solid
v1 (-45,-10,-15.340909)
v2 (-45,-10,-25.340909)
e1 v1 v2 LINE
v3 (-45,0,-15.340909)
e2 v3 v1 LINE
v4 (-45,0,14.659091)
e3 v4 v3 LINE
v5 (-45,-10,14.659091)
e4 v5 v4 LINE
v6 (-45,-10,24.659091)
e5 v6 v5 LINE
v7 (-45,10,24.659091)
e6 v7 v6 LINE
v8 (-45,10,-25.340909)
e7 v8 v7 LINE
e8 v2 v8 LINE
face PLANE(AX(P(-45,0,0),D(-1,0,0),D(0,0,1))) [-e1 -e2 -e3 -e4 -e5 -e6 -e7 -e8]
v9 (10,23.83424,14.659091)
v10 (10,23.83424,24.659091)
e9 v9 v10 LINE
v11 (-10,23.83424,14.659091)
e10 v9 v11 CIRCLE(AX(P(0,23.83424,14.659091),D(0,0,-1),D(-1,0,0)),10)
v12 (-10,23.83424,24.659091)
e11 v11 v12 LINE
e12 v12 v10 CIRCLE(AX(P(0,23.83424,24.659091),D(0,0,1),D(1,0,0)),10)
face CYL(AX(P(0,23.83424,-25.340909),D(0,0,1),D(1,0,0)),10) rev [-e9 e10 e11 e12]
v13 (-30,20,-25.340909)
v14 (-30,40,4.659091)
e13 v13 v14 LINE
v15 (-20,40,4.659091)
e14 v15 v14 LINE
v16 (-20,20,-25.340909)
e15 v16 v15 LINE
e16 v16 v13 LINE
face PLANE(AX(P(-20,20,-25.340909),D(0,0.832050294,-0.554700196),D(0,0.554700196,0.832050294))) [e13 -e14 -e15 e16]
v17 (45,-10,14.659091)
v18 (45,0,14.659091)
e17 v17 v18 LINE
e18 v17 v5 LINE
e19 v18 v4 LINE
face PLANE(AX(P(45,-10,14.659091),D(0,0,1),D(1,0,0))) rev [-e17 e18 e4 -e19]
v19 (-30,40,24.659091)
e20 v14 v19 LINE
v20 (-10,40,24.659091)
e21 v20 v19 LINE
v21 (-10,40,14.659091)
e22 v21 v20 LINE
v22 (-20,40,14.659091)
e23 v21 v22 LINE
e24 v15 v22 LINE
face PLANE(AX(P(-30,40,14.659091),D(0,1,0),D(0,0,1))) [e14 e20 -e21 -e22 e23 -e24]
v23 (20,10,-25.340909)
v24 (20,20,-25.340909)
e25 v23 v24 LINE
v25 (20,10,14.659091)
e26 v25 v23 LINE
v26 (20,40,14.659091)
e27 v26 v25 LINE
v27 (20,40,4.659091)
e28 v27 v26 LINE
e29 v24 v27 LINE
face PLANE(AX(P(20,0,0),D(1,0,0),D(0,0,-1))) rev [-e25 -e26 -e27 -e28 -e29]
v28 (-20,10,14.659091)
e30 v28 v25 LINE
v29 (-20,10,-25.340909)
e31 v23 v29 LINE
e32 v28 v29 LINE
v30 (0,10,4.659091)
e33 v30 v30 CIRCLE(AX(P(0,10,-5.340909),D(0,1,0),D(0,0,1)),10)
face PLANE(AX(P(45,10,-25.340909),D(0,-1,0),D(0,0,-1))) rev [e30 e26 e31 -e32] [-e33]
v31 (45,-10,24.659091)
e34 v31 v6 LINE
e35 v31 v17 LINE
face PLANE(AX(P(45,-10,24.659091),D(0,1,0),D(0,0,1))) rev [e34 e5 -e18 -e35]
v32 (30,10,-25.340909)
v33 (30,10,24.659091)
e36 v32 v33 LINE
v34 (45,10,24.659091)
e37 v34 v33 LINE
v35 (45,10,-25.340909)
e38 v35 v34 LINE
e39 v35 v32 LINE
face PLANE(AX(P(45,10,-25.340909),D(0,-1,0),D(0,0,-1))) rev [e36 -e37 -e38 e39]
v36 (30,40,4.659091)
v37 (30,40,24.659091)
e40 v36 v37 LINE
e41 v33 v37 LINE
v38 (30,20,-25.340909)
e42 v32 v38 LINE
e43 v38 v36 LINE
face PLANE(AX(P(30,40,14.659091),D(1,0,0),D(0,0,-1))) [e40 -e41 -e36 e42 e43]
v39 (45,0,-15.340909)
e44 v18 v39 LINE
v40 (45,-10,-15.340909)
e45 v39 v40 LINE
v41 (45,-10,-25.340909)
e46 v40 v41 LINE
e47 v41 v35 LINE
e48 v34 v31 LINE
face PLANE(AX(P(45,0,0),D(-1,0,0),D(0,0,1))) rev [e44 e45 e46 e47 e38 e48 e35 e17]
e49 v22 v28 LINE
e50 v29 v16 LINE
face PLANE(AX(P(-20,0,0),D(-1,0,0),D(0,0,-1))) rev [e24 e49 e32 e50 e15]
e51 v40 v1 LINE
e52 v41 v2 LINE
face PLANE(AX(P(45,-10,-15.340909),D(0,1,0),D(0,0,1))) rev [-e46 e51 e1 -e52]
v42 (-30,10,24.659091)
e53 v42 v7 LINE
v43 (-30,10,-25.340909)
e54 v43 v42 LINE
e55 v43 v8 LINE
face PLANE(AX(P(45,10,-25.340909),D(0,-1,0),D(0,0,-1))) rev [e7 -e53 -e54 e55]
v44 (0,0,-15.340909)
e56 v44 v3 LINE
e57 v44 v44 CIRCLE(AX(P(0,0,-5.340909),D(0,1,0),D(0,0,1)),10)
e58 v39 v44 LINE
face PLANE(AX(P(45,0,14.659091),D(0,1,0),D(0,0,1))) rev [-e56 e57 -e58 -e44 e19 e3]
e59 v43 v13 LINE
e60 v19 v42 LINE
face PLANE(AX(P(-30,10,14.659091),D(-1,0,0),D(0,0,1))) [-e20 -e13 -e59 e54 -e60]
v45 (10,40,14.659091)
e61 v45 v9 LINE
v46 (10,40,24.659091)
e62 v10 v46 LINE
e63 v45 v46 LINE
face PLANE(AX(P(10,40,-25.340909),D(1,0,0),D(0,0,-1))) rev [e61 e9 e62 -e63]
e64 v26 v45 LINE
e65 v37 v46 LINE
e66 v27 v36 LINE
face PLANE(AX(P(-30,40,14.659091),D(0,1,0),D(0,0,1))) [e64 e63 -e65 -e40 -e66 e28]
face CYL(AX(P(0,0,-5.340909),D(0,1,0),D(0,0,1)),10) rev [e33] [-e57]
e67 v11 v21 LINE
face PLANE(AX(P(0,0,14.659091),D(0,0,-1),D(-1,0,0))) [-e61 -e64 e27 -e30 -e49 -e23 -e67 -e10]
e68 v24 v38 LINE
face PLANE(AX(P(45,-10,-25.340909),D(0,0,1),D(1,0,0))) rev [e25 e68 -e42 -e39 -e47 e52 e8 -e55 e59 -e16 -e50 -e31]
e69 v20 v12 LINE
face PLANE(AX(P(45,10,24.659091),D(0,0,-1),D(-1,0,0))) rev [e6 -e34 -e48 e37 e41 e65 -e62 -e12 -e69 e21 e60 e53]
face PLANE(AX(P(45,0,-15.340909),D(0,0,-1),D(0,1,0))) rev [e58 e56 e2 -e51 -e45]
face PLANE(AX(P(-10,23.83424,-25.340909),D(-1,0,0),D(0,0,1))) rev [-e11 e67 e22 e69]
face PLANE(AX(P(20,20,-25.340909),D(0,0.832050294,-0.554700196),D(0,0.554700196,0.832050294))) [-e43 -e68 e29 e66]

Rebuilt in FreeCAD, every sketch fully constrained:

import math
import FreeCAD as App
import Part
import Sketcher

V = App.Vector
Q = App.Units.Quantity


def add_polygon(sketch, points):
    """Adds a closed chain of lines whose ends are joined by coincident constraints."""
    first, n = sketch.GeometryCount, len(points)
    for a, b in zip(points, points[1:] + points[:1]):
        sketch.addGeometry(Part.LineSegment(App.Vector(*a, 0), App.Vector(*b, 0)), False)
    for i in range(n):
        sketch.addConstraint(Sketcher.Constraint("Coincident", first + i, 2, first + (i + 1) % n, 1))

doc = App.newDocument("Part")
body = doc.addObject("PartDesign::Body", "Body")

# Sketch on YZ plane
sketch1 = doc.addObject("Sketcher::SketchObject", "Sketch")
body.addObject(sketch1)
sketch1.AttachmentSupport = (doc.YZ_Plane, [""])
sketch1.MapMode = "FlatFace"
add_polygon(sketch1, [(0, 15), (0, -15), (-10, -15), (-10, -25), (10, -25), (10, 25), (-10, 25), (-10, 15)])  # lines 0-7
sketch1.addConstraint([
    Sketcher.Constraint("Vertical", 0),
    Sketcher.Constraint("Horizontal", 1),
    Sketcher.Constraint("Vertical", 2),
    Sketcher.Constraint("Horizontal", 3),
    Sketcher.Constraint("Vertical", 4),
    Sketcher.Constraint("Horizontal", 5),
    Sketcher.Constraint("Vertical", 6),
    Sketcher.Constraint("Horizontal", 7),
    Sketcher.Constraint("PointOnObject", 0, 2, -2),
    Sketcher.Constraint("Vertical", 2, 2, 5, 2),
    Sketcher.Constraint("Equal", 7, 2),
    Sketcher.Constraint("Equal", 2, 6),
    Sketcher.Constraint("DistanceX", 1, 2, 1, 1, Q("10 mm")),
    Sketcher.Constraint("DistanceX", 3, 1, 3, 2, Q("20 mm")),
    Sketcher.Constraint("DistanceY", 0, 2, 0, 1, Q("30 mm")),
    Sketcher.Constraint("DistanceY", 0, 2, -1, 1, Q("15.340909 mm")),
])
pad1 = doc.addObject("PartDesign::Pad", "Pad")
body.addObject(pad1)
pad1.Profile = sketch1
pad1.Length = 90
pad1.Midplane = True

# Sketch on XY plane
sketch2 = doc.addObject("Sketcher::SketchObject", "Sketch001")
body.addObject(sketch2)
sketch2.AttachmentSupport = (doc.XY_Plane, [""])
sketch2.MapMode = "FlatFace"
sketch2.AttachmentOffset = App.Placement(V(0, 0, 24.659091), App.Rotation())
add_polygon(sketch2, [(-30, 40), (-30, 10), (30, 10), (30, 40)])  # lines 0-3
sketch2.addConstraint([
    Sketcher.Constraint("Vertical", 0),
    Sketcher.Constraint("Horizontal", 1),
    Sketcher.Constraint("Vertical", 2),
    Sketcher.Constraint("Horizontal", 3),
    Sketcher.Constraint("DistanceX", 1, 1, 1, 2, Q("60 mm")),
    Sketcher.Constraint("DistanceY", 0, 2, 0, 1, Q("30 mm")),
    Sketcher.Constraint("DistanceX", 0, 2, -1, 1, Q("30 mm")),
    Sketcher.Constraint("DistanceY", -1, 1, 0, 2, Q("10 mm")),
])
pad2 = doc.addObject("PartDesign::Pad", "Pad001")
body.addObject(pad2)
pad2.Profile = sketch2
pad2.Length = 10
pad2.Reversed = True

# Sketch on XY plane
sketch3 = doc.addObject("Sketcher::SketchObject", "Sketch002")
body.addObject(sketch3)
sketch3.AttachmentSupport = (doc.XY_Plane, [""])
sketch3.MapMode = "FlatFace"
sketch3.AttachmentOffset = App.Placement(V(0, 0, 24.659091), App.Rotation())
sketch3.addGeometry([
    Part.LineSegment(V(-10, 40, 0), V(-10, 24, 0)),
    Part.ArcOfCircle(Part.Circle(V(0, 24, 0), V(0, 0, 1), 10), math.radians(180), math.radians(360)),
    Part.LineSegment(V(10, 24, 0), V(10, 40, 0)),
    Part.LineSegment(V(10, 40, 0), V(-10, 40, 0)),
], False)
sketch3.addConstraint([
    Sketcher.Constraint("Tangent", 0, 2, 1, 1),
    Sketcher.Constraint("Tangent", 1, 2, 2, 1),
    Sketcher.Constraint("Coincident", 2, 2, 3, 1),
    Sketcher.Constraint("Coincident", 3, 2, 0, 1),
    Sketcher.Constraint("Vertical", 0),
    Sketcher.Constraint("Vertical", 2),
    Sketcher.Constraint("Horizontal", 3),
    Sketcher.Constraint("PointOnObject", 1, 3, -2),
    Sketcher.Constraint("Radius", 1, Q("10 mm")),
    Sketcher.Constraint("DistanceY", -1, 1, 2, 2, Q("40 mm")),
    Sketcher.Constraint("DistanceY", 0, 2, 0, 1, Q("16.16576 mm")),
])
pocket1 = doc.addObject("PartDesign::Pocket", "Pocket")
body.addObject(pocket1)
pocket1.Profile = sketch3
pocket1.Type = "ThroughAll"

# Sketch on XZ plane
sketch4 = doc.addObject("Sketcher::SketchObject", "Sketch003")
body.addObject(sketch4)
sketch4.AttachmentSupport = (doc.XZ_Plane, [""])
sketch4.MapMode = "FlatFace"
sketch4.AttachmentOffset = App.Placement(V(0, 0, -10), App.Rotation())
sketch4.addGeometry(Part.Circle(V(0, -5, 0), V(0, 0, 1), 10), False)
sketch4.addConstraint([
    Sketcher.Constraint("PointOnObject", 0, 3, -2),
    Sketcher.Constraint("Diameter", 0, Q("20 mm")),
    Sketcher.Constraint("DistanceY", 0, 3, -1, 1, Q("5.340909 mm")),
])
pocket2 = doc.addObject("PartDesign::Pocket", "Pocket001")
body.addObject(pocket2)
pocket2.Profile = sketch4
pocket2.Length = 10
pocket2.Reversed = True

# Sketch on YZ plane
sketch5 = doc.addObject("Sketcher::SketchObject", "Sketch004")
body.addObject(sketch5)
sketch5.AttachmentSupport = (doc.YZ_Plane, [""])
sketch5.MapMode = "FlatFace"
sketch5.AttachmentOffset = App.Placement(V(0, 0, 30), App.Rotation())
add_polygon(sketch5, [(10, 15), (10, -25), (20, -25), (40, 5), (40, 15)])  # lines 0-4
sketch5.addConstraint([
    Sketcher.Constraint("Vertical", 0),
    Sketcher.Constraint("Horizontal", 1),
    Sketcher.Constraint("Vertical", 3),
    Sketcher.Constraint("Horizontal", 4),
    Sketcher.Constraint("Equal", 1, 3),
    Sketcher.Constraint("DistanceX", 1, 1, 1, 2, Q("10 mm")),
    Sketcher.Constraint("DistanceX", 4, 2, 4, 1, Q("30 mm")),
    Sketcher.Constraint("DistanceY", 0, 2, 0, 1, Q("40 mm")),
    Sketcher.Constraint("DistanceX", -1, 1, 0, 2, Q("10 mm")),
    Sketcher.Constraint("DistanceY", 0, 2, -1, 1, Q("25.340909 mm")),
])
pad3 = doc.addObject("PartDesign::Pad", "Pad002")
body.addObject(pad3)
pad3.Profile = sketch5
pad3.Length = 10
pad3.Reversed = True
body2 = doc.addObject("PartDesign::Body", "Body001")
doc.recompute()

body2.BaseFeature = body
doc.recompute()

mirroring = doc.addObject("Part::Mirroring", "Mirroring")
mirroring.Source = body
mirroring.Base = V(0, 0, 0)
mirroring.Normal = V(1, 0, 0)
body3 = doc.addObject("PartDesign::Body", "Body002")
body3.BaseFeature = mirroring
boolean = doc.addObject("PartDesign::Boolean", "Boolean")
body2.addObject(boolean)
boolean.Type = "Fuse"
boolean.addObjects([body3])
doc.recompute()
mirroring.Visibility = False

doc.recompute()
